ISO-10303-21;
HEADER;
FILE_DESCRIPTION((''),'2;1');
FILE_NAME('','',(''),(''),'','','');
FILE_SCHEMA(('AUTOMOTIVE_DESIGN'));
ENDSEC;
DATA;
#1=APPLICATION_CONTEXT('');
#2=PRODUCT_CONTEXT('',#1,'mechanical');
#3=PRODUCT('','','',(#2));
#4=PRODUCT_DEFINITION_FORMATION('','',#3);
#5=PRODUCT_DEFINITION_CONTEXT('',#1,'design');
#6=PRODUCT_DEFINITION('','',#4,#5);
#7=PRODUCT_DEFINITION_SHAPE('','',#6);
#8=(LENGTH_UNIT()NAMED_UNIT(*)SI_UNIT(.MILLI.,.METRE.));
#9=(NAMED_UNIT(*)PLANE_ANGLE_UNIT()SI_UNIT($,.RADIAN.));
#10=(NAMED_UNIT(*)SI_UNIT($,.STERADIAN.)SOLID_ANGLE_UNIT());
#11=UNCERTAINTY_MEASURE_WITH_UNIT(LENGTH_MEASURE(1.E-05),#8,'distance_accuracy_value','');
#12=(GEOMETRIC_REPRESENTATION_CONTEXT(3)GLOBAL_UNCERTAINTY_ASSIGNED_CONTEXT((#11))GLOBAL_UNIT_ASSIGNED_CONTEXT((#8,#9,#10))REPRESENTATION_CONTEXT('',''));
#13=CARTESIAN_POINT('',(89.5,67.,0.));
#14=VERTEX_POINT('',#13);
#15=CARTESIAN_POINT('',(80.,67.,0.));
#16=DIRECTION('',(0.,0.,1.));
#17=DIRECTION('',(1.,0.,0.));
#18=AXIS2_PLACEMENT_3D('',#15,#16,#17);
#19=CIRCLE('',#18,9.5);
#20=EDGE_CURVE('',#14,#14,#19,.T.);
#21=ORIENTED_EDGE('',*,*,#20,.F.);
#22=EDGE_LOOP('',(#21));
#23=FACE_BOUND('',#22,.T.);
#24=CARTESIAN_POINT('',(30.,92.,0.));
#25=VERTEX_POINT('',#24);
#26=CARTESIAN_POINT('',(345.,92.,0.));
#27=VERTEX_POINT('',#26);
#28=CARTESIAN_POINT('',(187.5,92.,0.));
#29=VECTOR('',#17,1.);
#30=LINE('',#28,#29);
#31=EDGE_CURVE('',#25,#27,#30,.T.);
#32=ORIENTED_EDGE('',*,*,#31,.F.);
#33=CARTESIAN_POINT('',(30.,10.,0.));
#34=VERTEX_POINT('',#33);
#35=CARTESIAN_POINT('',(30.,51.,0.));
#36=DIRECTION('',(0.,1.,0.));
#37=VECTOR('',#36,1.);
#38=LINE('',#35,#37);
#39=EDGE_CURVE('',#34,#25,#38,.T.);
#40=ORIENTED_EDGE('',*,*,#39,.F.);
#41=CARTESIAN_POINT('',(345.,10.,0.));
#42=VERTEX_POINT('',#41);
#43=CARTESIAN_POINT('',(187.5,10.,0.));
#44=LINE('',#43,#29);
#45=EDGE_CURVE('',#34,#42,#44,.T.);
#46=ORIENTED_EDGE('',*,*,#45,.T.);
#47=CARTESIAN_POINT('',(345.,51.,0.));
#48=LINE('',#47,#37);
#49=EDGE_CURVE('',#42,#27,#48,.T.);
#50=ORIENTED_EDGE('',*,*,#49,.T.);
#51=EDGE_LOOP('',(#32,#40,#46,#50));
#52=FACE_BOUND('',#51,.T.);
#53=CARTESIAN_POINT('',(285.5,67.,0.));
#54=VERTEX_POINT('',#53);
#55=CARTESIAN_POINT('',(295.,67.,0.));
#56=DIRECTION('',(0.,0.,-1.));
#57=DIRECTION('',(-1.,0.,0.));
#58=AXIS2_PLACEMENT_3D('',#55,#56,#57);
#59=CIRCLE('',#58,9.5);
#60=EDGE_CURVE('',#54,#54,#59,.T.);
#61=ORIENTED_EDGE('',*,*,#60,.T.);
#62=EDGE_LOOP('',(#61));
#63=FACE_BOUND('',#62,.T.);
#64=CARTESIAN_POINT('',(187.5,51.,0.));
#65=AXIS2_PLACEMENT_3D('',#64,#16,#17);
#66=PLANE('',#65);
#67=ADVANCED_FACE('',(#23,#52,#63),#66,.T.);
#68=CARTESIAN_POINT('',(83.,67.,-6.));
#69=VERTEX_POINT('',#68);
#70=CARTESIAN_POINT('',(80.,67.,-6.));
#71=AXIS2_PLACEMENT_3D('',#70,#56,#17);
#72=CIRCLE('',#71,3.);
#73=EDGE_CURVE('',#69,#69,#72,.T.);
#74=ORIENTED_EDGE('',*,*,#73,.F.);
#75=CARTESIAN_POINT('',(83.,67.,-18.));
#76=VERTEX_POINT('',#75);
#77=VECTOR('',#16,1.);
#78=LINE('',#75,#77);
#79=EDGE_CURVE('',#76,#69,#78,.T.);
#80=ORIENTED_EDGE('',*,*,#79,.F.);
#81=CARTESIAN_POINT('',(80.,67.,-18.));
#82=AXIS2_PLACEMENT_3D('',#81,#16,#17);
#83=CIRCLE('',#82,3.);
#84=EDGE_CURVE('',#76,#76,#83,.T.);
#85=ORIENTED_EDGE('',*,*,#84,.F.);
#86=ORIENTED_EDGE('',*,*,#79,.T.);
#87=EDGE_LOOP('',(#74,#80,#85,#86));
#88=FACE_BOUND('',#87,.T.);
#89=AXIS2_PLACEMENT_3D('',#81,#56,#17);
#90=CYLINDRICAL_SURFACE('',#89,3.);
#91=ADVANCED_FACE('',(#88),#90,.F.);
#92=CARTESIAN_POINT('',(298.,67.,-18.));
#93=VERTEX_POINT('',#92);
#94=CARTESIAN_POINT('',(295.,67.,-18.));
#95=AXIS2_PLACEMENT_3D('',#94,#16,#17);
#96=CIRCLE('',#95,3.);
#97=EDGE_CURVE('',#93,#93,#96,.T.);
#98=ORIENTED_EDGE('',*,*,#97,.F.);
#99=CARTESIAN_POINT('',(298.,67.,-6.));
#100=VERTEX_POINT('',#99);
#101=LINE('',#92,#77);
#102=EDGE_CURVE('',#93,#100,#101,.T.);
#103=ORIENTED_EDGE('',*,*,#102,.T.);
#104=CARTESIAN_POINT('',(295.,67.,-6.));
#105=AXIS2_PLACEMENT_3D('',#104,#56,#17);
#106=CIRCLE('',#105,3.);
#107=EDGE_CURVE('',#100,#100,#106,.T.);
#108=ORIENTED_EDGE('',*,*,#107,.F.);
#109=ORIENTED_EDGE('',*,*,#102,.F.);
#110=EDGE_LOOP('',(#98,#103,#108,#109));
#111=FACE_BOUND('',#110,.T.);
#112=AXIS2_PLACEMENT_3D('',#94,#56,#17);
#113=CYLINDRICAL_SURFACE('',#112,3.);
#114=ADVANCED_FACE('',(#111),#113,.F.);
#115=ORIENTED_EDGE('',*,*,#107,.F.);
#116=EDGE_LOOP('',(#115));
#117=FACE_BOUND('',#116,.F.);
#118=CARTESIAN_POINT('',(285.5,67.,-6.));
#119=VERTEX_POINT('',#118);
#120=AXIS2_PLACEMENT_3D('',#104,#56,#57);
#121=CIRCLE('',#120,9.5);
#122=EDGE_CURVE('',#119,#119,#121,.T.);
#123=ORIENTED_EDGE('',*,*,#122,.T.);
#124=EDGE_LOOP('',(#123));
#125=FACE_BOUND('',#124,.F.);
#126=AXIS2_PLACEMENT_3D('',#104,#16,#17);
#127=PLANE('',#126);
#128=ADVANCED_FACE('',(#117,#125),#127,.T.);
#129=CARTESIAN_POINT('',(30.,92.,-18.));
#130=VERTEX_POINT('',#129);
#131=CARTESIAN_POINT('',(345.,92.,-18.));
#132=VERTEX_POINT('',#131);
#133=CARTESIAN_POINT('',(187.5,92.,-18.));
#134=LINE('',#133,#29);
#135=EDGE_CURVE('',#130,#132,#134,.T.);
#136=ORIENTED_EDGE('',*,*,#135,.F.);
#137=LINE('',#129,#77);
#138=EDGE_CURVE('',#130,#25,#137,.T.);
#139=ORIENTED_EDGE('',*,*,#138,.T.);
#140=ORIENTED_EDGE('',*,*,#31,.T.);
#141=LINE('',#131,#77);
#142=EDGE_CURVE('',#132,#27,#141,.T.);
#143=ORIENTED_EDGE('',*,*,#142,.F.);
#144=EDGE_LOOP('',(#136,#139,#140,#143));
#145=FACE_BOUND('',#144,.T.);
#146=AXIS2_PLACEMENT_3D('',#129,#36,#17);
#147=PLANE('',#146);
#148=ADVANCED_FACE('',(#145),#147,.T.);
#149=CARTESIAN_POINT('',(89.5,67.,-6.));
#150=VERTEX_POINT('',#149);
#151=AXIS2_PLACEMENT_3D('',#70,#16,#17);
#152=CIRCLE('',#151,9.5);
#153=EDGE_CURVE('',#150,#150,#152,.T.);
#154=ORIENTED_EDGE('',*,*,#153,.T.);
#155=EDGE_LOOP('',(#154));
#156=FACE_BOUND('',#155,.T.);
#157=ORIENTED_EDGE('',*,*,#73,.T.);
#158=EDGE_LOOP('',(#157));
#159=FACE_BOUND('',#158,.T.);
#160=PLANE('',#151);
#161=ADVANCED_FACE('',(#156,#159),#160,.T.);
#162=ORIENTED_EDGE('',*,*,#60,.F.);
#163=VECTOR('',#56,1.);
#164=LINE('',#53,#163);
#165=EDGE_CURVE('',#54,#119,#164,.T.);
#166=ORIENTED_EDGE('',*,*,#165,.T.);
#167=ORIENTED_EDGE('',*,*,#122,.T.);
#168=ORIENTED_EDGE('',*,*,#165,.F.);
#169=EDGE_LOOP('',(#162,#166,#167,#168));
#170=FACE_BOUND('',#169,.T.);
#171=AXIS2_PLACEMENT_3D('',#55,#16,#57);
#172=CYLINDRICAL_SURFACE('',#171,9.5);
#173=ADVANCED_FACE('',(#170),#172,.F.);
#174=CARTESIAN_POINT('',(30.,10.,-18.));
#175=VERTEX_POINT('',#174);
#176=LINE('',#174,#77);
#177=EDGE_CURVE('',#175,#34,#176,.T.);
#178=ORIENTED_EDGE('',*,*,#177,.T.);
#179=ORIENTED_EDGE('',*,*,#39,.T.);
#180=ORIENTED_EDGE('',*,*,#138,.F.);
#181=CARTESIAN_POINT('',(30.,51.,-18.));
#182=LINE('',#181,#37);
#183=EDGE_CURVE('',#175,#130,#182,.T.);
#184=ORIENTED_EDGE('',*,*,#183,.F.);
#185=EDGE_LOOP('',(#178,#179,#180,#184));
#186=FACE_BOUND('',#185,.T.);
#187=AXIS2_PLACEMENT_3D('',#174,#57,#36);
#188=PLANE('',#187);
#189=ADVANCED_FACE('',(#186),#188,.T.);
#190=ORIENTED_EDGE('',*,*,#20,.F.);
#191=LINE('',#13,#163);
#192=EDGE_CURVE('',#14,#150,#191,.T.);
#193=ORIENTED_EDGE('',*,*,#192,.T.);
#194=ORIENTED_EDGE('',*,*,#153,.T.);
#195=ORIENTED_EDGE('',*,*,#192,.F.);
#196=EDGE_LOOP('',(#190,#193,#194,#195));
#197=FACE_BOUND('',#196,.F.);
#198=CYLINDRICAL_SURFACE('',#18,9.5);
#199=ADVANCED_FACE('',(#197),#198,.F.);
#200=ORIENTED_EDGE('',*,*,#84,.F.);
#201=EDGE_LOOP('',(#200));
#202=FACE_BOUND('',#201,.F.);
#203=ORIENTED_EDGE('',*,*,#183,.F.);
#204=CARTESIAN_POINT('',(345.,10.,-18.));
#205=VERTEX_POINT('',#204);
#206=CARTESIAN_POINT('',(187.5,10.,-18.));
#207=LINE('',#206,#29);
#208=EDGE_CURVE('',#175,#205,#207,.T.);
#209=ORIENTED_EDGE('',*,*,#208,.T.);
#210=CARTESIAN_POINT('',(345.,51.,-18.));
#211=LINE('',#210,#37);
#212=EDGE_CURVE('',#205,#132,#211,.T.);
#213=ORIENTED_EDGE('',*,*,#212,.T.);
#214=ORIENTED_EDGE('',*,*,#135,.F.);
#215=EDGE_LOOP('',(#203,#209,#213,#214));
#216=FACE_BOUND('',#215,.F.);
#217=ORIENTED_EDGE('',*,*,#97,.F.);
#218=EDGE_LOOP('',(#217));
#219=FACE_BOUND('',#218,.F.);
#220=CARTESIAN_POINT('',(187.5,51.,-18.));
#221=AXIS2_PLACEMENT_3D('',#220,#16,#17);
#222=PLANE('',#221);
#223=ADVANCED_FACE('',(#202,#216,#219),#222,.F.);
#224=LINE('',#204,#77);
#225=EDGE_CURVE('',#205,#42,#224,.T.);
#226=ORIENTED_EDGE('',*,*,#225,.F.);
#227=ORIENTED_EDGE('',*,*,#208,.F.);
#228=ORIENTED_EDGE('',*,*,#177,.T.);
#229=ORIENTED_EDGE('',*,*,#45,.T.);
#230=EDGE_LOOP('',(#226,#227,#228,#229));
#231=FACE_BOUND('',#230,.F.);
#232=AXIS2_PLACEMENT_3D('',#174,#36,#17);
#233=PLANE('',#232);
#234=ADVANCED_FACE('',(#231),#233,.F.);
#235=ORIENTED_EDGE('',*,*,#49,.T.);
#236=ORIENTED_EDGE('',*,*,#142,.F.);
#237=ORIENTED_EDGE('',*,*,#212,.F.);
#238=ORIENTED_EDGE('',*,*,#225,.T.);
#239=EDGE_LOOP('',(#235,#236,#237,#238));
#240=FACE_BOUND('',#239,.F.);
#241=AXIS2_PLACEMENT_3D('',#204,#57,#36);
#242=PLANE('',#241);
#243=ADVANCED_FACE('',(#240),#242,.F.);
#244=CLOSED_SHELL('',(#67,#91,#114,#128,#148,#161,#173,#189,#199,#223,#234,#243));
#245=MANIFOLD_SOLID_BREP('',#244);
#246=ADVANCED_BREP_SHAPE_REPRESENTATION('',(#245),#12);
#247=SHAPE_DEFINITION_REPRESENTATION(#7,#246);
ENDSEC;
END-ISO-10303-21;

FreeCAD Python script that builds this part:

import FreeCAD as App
import Part
import Sketcher

doc = App.newDocument("Part")
params = doc.addObject("Spreadsheet::Sheet", "Params")
for row, (alias, value) in enumerate([
    ("sketch1_diameter", "6 mm"),
    ("sketch1_width", "315 mm"),
    ("sketch1_height", "82 mm"),
    ("pad1_length", "18 mm"),
    ("sketch2_diameter", "19 mm"),
    ("pocket1_length", "6 mm"),
], start=1):
    params.set(f"A{row}", alias)
    params.set(f"B{row}", "=" + value)
    params.setAlias(f"B{row}", alias)

body = doc.addObject("PartDesign::Body", "Body")

sketch1 = body.newObject("Sketcher::SketchObject", "Sketch")
sketch1.AttachmentSupport = (doc.getObject("XY_Plane"), [""])
sketch1.MapMode = "FlatFace"
sketch1.addGeometry(Part.LineSegment(App.Vector(-157.5, 82, 0), App.Vector(-157.5, 0, 0)), False)
sketch1.addGeometry(Part.LineSegment(App.Vector(-157.5, 0, 0), App.Vector(157.5, 0, 0)), False)
sketch1.addGeometry(Part.LineSegment(App.Vector(157.5, 0, 0), App.Vector(157.5, 82, 0)), False)
sketch1.addGeometry(Part.LineSegment(App.Vector(157.5, 82, 0), App.Vector(-157.5, 82, 0)), False)
sketch1.addGeometry(Part.Circle(App.Vector(-107.5, 57, 0), App.Vector(0, 0, 1), 3), False)
sketch1.addGeometry(Part.Circle(App.Vector(107.5, 57, 0), App.Vector(0, 0, 1), 3), False)
sketch1.addConstraint(Sketcher.Constraint("Coincident", 0, 2, 1, 1))
sketch1.addConstraint(Sketcher.Constraint("Coincident", 1, 2, 2, 1))
sketch1.addConstraint(Sketcher.Constraint("Coincident", 2, 2, 3, 1))
sketch1.addConstraint(Sketcher.Constraint("Coincident", 3, 2, 0, 1))
sketch1.addConstraint(Sketcher.Constraint("Vertical", 0))
sketch1.addConstraint(Sketcher.Constraint("Horizontal", 1))
sketch1.addConstraint(Sketcher.Constraint("Vertical", 2))
sketch1.addConstraint(Sketcher.Constraint("Horizontal", 3))
sketch1.addConstraint(Sketcher.Constraint("Equal", 4, 5))
sketch1.addConstraint(Sketcher.Constraint("Symmetric", 0, 2, 1, 2, -1, 1))
sketch1.addConstraint(Sketcher.Constraint("Symmetric", 4, 3, 5, 3, -2))
sketch1.addConstraint(Sketcher.Constraint("Diameter", 4, 6.0))
sketch1.addConstraint(Sketcher.Constraint("DistanceX", 1, 1, 1, 2, 315.0))
sketch1.addConstraint(Sketcher.Constraint("DistanceY", 0, 2, 0, 1, 82.0))
sketch1.addConstraint(Sketcher.Constraint("DistanceY", -1, 1, 4, 3, 57.0))
sketch1.addConstraint(Sketcher.Constraint("DistanceX", 4, 3, 5, 3, 215.0))
sketch1.setExpression("Constraints[11]", "Params.sketch1_diameter")
sketch1.setExpression("Constraints[12]", "Params.sketch1_width")
sketch1.setExpression("Constraints[13]", "Params.sketch1_height")
pad1 = body.newObject("PartDesign::Pad", "Pad")
pad1.Profile = sketch1
pad1.setExpression("Length", "Params.pad1_length")

sketch2 = body.newObject("Sketcher::SketchObject", "Sketch001")
sketch2.AttachmentSupport = (doc.getObject("XY_Plane"), [""])
sketch2.MapMode = "FlatFace"
sketch2.AttachmentOffset = App.Placement(App.Vector(0, 0, 18), App.Rotation())
sketch2.addGeometry(Part.Circle(App.Vector(-108, 57, 0), App.Vector(0, 0, 1), 10), False)
sketch2.addConstraint(Sketcher.Constraint("Diameter", 0, 19.0))
sketch2.addConstraint(Sketcher.Constraint("DistanceY", -1, 1, 0, 3, 57.0))
sketch2.addConstraint(Sketcher.Constraint("DistanceX", 0, 3, -1, 1, 107.5))
sketch2.setExpression("Constraints[0]", "Params.sketch2_diameter")
pocket1 = body.newObject("PartDesign::Pocket", "Pocket")
pocket1.Profile = sketch2
pocket1.setExpression("Length", "Params.pocket1_length")
doc.recompute()

mirrored = body.newObject("PartDesign::Mirrored", "Mirrored")
mirrored.Originals = [pocket1]
mirrored.MirrorPlane = (doc.getObject("YZ_Plane"), [""])
body.Tip = mirrored
body2 = doc.addObject("PartDesign::Body", "Body001")
doc.recompute()

body.Placement = App.Placement(App.Vector(187.5, 10, -18), App.Rotation(App.Vector(0, 0, 1), 0))
boolean = body2.newObject("PartDesign::Boolean", "Boolean")
boolean.Type = "Fuse"
boolean.addObjects([body])

doc.recompute()
